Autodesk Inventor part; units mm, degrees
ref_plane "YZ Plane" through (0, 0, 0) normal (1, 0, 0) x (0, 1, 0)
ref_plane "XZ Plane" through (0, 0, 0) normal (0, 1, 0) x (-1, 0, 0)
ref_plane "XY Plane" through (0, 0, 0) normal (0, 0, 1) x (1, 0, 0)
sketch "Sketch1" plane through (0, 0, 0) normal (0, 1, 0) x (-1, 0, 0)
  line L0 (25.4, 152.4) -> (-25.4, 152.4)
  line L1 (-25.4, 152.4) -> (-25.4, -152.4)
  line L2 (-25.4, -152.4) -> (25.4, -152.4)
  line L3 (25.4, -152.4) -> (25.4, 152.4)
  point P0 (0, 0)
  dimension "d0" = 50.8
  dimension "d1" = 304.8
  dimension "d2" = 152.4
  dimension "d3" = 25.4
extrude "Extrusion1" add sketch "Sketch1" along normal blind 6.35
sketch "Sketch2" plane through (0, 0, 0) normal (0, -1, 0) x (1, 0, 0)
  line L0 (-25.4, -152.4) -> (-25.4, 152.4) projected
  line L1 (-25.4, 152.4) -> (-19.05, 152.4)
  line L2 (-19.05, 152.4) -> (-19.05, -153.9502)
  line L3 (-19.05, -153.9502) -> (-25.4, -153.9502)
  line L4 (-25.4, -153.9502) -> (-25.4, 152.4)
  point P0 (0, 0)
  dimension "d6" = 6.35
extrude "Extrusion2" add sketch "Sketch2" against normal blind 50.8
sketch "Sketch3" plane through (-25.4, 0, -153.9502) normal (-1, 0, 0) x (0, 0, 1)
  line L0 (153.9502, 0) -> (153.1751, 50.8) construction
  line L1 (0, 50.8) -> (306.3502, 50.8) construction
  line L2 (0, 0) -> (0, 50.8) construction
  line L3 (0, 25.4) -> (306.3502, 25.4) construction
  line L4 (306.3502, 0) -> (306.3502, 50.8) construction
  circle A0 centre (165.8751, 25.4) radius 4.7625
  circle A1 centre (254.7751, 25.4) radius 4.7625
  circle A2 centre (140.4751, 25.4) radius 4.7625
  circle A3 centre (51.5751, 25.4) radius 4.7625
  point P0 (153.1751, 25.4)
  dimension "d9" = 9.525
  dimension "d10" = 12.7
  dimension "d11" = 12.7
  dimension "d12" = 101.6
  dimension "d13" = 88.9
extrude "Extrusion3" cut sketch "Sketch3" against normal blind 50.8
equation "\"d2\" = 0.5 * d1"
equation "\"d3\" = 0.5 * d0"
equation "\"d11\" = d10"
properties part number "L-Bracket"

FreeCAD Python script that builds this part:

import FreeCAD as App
import Part
import Sketcher
Q = App.Units.Quantity


def add_polygon(sketch, points):
    """Adds a closed chain of lines whose ends are joined by coincident constraints."""
    first, n = sketch.GeometryCount, len(points)
    for a, b in zip(points, points[1:] + points[:1]):
        sketch.addGeometry(Part.LineSegment(App.Vector(*a, 0), App.Vector(*b, 0)), False)
    for i in range(n):
        sketch.addConstraint(Sketcher.Constraint("Coincident", first + i, 2, first + (i + 1) % n, 1))

doc = App.newDocument("Part")
body = doc.addObject("PartDesign::Body", "Body")

sketch1 = body.newObject("Sketcher::SketchObject", "Sketch")
sketch1.AttachmentSupport = (doc.getObject("XZ_Plane"), [""])
sketch1.MapMode = "FlatFace"
add_polygon(sketch1, [(-25.4, -152.4), (-25.4, 152.4), (25.4, 152.4), (25.4, -152.4)])
sketch1.addConstraint([
    Sketcher.Constraint("Vertical", 0),
    Sketcher.Constraint("Horizontal", 1),
    Sketcher.Constraint("Vertical", 2),
    Sketcher.Constraint("Horizontal", 3),
    Sketcher.Constraint("Symmetric", 0, 2, 2, 2, -1, 1),
    Sketcher.Constraint("DistanceX", 1, 1, 1, 2, Q("2 in")),
    Sketcher.Constraint("DistanceY", 0, 1, 0, 2, Q("12 in")),
])
pad1 = body.newObject("PartDesign::Pad", "Pad")
pad1.Profile = sketch1
pad1.Length = Q("0.25 in")
pad1.Reversed = True

sketch2 = body.newObject("Sketcher::SketchObject", "Sketch001")
sketch2.AttachmentSupport = (doc.getObject("XZ_Plane"), [""])
sketch2.MapMode = "FlatFace"
add_polygon(sketch2, [(-25.4, 152.4), (-25.4, -153.9502), (-19.05, -153.9502), (-19.05, 152.4)])
sketch2.addConstraint([
    Sketcher.Constraint("Vertical", 0),
    Sketcher.Constraint("Horizontal", 1),
    Sketcher.Constraint("Vertical", 2),
    Sketcher.Constraint("Horizontal", 3),
    Sketcher.Constraint("DistanceX", 1, 1, 1, 2, Q("0.25 in")),
    Sketcher.Constraint("DistanceX", 0, 2, -1, 1, Q("1 in")),
    Sketcher.Constraint("DistanceY", -1, 1, 2, 2, Q("6 in")),
    Sketcher.Constraint("DistanceY", 0, 2, 0, 1, Q("306.3502 mm")),
])
pad2 = body.newObject("PartDesign::Pad", "Pad001")
pad2.Profile = sketch2
pad2.Length = Q("2 in")
pad2.Reversed = True

sketch3 = body.newObject("Sketcher::SketchObject", "Sketch002")
sketch3.AttachmentSupport = (doc.getObject("YZ_Plane"), [""])
sketch3.MapMode = "FlatFace"
sketch3.AttachmentOffset = App.Placement(App.Vector(0, 0, -1 * 25.4), App.Rotation())
sketch3.addGeometry([
    Part.Circle(App.Vector(25.4, 11.9249, 0), App.Vector(0, 0, 1), 4.7625),
    Part.Circle(App.Vector(25.4, 100.8249, 0), App.Vector(0, 0, 1), 4.7625),
    Part.Circle(App.Vector(25.4, -13.4751, 0), App.Vector(0, 0, 1), 4.7625),
    Part.Circle(App.Vector(25.4, -102.3751, 0), App.Vector(0, 0, 1), 4.7625),
], False)
sketch3.addConstraint([
    Sketcher.Constraint("Equal", 0, 1),
    Sketcher.Constraint("Equal", 1, 2),
    Sketcher.Constraint("Equal", 2, 3),
    Sketcher.Constraint("Vertical", 0, 3, 1, 3),
    Sketcher.Constraint("Vertical", 1, 3, 2, 3),
    Sketcher.Constraint("Vertical", 2, 3, 3, 3),
    Sketcher.Constraint("Diameter", 0, Q("0.375 in")),
    Sketcher.Constraint("DistanceY", 0, 3, 1, 3, Q("3.5 in")),
    Sketcher.Constraint("DistanceY", 3, 3, 2, 3, Q("3.5 in")),
    Sketcher.Constraint("DistanceX", -1, 1, 0, 3, Q("1 in")),
    Sketcher.Constraint("DistanceY", 2, 3, 0, 3, Q("1 in")),
    Sketcher.Constraint("DistanceY", -1, 1, 0, 3, Q("0.4694882 in")),
])
pocket1 = body.newObject("PartDesign::Pocket", "Pocket")
pocket1.Profile = sketch3
pocket1.Length = Q("2 in")
pocket1.Reversed = True

doc.recompute()
